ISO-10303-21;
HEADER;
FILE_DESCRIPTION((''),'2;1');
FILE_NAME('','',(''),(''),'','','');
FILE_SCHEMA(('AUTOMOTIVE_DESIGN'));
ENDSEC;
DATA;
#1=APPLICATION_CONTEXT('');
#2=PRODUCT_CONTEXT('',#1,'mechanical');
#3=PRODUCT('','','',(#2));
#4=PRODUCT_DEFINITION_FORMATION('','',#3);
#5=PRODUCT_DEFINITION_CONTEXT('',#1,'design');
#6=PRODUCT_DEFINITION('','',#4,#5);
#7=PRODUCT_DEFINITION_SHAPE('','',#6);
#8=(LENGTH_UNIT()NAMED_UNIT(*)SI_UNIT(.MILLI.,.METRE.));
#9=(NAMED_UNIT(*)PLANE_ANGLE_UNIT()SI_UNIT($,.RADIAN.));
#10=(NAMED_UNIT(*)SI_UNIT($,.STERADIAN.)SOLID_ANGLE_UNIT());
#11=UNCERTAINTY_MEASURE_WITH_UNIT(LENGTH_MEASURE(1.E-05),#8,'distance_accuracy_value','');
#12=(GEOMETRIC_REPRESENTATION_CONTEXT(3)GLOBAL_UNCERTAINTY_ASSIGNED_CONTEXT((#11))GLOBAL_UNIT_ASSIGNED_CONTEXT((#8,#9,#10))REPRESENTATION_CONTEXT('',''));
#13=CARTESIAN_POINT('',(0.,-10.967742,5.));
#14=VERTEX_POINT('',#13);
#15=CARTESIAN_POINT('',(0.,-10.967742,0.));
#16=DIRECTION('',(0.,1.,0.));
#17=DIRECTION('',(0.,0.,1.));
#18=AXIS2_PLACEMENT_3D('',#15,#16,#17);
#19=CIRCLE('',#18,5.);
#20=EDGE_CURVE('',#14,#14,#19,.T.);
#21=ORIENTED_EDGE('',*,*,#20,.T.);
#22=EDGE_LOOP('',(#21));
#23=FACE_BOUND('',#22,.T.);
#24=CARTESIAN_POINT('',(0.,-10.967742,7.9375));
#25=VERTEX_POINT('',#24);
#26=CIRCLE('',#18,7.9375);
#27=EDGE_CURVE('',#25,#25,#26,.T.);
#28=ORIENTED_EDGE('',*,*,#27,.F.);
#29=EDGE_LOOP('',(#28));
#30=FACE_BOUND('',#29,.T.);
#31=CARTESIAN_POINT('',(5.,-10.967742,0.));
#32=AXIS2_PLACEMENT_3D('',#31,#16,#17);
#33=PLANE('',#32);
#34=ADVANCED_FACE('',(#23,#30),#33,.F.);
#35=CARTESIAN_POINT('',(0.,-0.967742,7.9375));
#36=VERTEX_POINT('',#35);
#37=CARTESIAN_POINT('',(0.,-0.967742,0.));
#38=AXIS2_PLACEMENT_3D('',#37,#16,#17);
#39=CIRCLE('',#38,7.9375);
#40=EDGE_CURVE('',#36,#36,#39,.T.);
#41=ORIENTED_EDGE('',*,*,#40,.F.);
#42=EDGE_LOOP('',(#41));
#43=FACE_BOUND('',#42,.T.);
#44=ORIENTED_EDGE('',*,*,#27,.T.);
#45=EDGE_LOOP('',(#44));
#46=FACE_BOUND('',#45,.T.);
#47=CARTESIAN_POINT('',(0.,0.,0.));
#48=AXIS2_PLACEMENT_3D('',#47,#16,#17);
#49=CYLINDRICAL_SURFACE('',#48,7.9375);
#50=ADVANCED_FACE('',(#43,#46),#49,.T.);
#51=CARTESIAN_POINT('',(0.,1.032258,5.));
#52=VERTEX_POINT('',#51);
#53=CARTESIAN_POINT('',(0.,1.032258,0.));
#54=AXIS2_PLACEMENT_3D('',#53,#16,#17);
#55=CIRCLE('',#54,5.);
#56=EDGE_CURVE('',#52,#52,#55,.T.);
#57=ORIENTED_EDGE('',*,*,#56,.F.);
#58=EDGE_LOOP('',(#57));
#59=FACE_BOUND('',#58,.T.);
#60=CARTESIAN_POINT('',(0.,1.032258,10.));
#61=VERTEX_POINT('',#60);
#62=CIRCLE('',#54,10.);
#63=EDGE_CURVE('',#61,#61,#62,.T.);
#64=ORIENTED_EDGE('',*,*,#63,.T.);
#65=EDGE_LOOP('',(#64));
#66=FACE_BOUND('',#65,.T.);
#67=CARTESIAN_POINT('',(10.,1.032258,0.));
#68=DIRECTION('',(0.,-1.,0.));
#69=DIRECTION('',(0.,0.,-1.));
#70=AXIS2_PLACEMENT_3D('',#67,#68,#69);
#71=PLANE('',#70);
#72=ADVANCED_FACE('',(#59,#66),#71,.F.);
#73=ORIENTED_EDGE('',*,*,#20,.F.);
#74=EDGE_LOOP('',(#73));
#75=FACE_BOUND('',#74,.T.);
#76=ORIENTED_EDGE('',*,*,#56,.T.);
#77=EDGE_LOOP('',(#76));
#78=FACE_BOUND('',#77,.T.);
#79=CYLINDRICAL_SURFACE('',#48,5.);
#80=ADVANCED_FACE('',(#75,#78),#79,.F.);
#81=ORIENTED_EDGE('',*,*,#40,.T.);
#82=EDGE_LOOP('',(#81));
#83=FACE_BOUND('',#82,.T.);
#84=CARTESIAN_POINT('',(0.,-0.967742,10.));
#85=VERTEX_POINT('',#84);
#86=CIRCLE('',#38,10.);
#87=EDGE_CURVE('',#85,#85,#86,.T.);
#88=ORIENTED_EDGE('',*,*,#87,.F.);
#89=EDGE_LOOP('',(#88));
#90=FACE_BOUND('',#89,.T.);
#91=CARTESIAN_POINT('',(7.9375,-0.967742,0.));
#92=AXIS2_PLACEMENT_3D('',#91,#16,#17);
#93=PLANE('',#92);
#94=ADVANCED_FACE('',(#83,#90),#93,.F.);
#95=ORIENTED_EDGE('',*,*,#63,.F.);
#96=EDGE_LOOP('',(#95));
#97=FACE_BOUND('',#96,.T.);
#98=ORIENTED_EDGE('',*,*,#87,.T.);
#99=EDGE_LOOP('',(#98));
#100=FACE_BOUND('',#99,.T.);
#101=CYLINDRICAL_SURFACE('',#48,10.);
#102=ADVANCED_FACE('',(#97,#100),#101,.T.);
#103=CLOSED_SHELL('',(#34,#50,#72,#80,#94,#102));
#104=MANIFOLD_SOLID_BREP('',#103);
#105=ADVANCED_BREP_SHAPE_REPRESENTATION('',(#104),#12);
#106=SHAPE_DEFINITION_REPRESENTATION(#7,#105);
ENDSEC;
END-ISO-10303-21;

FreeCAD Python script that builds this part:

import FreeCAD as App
import Part
import Sketcher
from FreeCAD import Vector
Q = App.Units.Quantity


def add_polygon(sketch, points):
    """Adds a closed chain of lines whose ends are joined by coincident constraints."""
    first, n = sketch.GeometryCount, len(points)
    for a, b in zip(points, points[1:] + points[:1]):
        sketch.addGeometry(Part.LineSegment(App.Vector(*a, 0), App.Vector(*b, 0)), False)
    for i in range(n):
        sketch.addConstraint(Sketcher.Constraint("Coincident", first + i, 2, first + (i + 1) % n, 1))

doc = App.newDocument("Part")
params = doc.addObject("Spreadsheet::Sheet", "Params")
for row, (alias, value) in enumerate([
    ("sketch1_width", "5 mm"),
    ("sketch1_height", "12 mm"),
    ("sketch1_height2", "10 mm"),
    ("revolution_angle", "360 deg"),
], start=1):
    params.set(f"A{row}", alias)
    params.set(f"B{row}", "=" + value)
    params.setAlias(f"B{row}", alias)

body = doc.addObject("PartDesign::Body", "Body")

# Sketch on XY plane
sketch1 = body.newObject("Sketcher::SketchObject", "Sketch")
sketch1.AttachmentSupport = (doc.getObject("XY_Plane"), [""])
sketch1.MapMode = "FlatFace"
add_polygon(sketch1, [(5, 1.032258), (5, -10.967742), (7.9375, -10.967742), (7.9375, -0.967742), (10, -0.967742), (10, 1.032258)])  # lines 0-5
sketch1.addConstraint([
    Sketcher.Constraint("Vertical", 0),
    Sketcher.Constraint("Horizontal", 1),
    Sketcher.Constraint("Vertical", 2),
    Sketcher.Constraint("Horizontal", 3),
    Sketcher.Constraint("Vertical", 4),
    Sketcher.Constraint("Horizontal", 5),
    Sketcher.Constraint("DistanceX", 5, 2, 5, 1, Q("5 mm")),
    Sketcher.Constraint("DistanceY", 0, 2, 0, 1, Q("12 mm")),
    Sketcher.Constraint("DistanceY", 2, 1, 2, 2, Q("10 mm")),
    Sketcher.Constraint("DistanceX", -1, 1, 0, 2, Q("5 mm")),
    Sketcher.Constraint("DistanceX", 1, 1, 1, 2, Q("2.9375 mm")),
    Sketcher.Constraint("DistanceY", 0, 2, -1, 1, Q("10.967742 mm")),
])
sketch1.setExpression("Constraints[12]", "Params.sketch1_width")
sketch1.setExpression("Constraints[13]", "Params.sketch1_height")
sketch1.setExpression("Constraints[14]", "Params.sketch1_height2")
revolution = body.newObject("PartDesign::Revolution", "Revolution")
revolution.Profile = sketch1
revolution.ReferenceAxis = (sketch1, ["V_Axis"])
revolution.setExpression("Angle", "Params.revolution_angle")

doc.recompute()
